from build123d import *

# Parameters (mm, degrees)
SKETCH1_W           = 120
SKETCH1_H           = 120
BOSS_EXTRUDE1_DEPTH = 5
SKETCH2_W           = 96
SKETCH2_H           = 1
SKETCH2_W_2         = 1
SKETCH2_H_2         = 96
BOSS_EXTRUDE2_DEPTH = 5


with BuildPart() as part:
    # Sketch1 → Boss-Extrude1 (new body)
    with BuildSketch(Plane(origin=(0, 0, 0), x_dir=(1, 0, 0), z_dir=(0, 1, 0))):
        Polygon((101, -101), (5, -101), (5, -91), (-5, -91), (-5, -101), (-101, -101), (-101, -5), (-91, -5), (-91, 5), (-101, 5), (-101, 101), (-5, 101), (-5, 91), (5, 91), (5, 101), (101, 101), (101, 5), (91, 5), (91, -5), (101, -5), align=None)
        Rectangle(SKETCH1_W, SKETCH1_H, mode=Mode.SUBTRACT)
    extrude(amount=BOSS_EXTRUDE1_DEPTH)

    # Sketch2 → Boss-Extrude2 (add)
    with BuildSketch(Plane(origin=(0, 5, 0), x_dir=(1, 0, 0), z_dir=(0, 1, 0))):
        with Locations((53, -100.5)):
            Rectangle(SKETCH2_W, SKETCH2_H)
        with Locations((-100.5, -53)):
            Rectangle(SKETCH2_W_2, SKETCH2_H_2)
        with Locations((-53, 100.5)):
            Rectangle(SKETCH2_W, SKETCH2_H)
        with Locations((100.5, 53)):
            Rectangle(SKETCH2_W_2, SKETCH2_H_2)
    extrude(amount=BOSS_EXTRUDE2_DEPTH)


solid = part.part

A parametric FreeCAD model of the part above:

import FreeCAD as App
import Part
import Sketcher

doc = App.newDocument("Part")
body = doc.addObject("PartDesign::Body", "Body")

sketch1 = body.newObject("Sketcher::SketchObject", "Sketch")
sketch1.AttachmentSupport = (doc.getObject("XZ_Plane"), [""])
sketch1.MapMode = "FlatFace"
sketch1.addGeometry([
    Part.LineSegment(App.Vector(5, 101, 0), App.Vector(101, 101, 0)),
    Part.LineSegment(App.Vector(101, 101, 0), App.Vector(101, 5, 0)),
    Part.LineSegment(App.Vector(101, 5, 0), App.Vector(91, 5, 0)),
    Part.LineSegment(App.Vector(91, 5, 0), App.Vector(91, -5, 0)),
    Part.LineSegment(App.Vector(91, -5, 0), App.Vector(101, -5, 0)),
    Part.LineSegment(App.Vector(101, -5, 0), App.Vector(101, -101, 0)),
    Part.LineSegment(App.Vector(101, -101, 0), App.Vector(5, -101, 0)),
    Part.LineSegment(App.Vector(5, -101, 0), App.Vector(5, -91, 0)),
    Part.LineSegment(App.Vector(5, -91, 0), App.Vector(-5, -91, 0)),
    Part.LineSegment(App.Vector(-5, -91, 0), App.Vector(-5, -101, 0)),
    Part.LineSegment(App.Vector(-5, -101, 0), App.Vector(-101, -101, 0)),
    Part.LineSegment(App.Vector(-101, -101, 0), App.Vector(-101, -5, 0)),
    Part.LineSegment(App.Vector(-101, -5, 0), App.Vector(-91, -5, 0)),
    Part.LineSegment(App.Vector(-91, -5, 0), App.Vector(-91, 5, 0)),
    Part.LineSegment(App.Vector(-91, 5, 0), App.Vector(-101, 5, 0)),
    Part.LineSegment(App.Vector(-101, 5, 0), App.Vector(-101, 101, 0)),
    Part.LineSegment(App.Vector(-101, 101, 0), App.Vector(-5, 101, 0)),
    Part.LineSegment(App.Vector(-5, 101, 0), App.Vector(-5, 91, 0)),
    Part.LineSegment(App.Vector(-5, 91, 0), App.Vector(5, 91, 0)),
    Part.LineSegment(App.Vector(5, 91, 0), App.Vector(5, 101, 0)),
    Part.LineSegment(App.Vector(-60, 60, 0), App.Vector(-60, -60, 0)),
    Part.LineSegment(App.Vector(-60, -60, 0), App.Vector(60, -60, 0)),
    Part.LineSegment(App.Vector(60, -60, 0), App.Vector(60, 60, 0)),
    Part.LineSegment(App.Vector(60, 60, 0), App.Vector(-60, 60, 0)),
], False)
sketch1.addConstraint([
    Sketcher.Constraint("Coincident", 0, 2, 1, 1),
    Sketcher.Constraint("Coincident", 1, 2, 2, 1),
    Sketcher.Constraint("Coincident", 2, 2, 3, 1),
    Sketcher.Constraint("Coincident", 3, 2, 4, 1),
    Sketcher.Constraint("Coincident", 4, 2, 5, 1),
    Sketcher.Constraint("Coincident", 5, 2, 6, 1),
    Sketcher.Constraint("Coincident", 6, 2, 7, 1),
    Sketcher.Constraint("Coincident", 7, 2, 8, 1),
    Sketcher.Constraint("Coincident", 8, 2, 9, 1),
    Sketcher.Constraint("Coincident", 9, 2, 10, 1),
    Sketcher.Constraint("Coincident", 10, 2, 11, 1),
    Sketcher.Constraint("Coincident", 11, 2, 12, 1),
    Sketcher.Constraint("Coincident", 12, 2, 13, 1),
    Sketcher.Constraint("Coincident", 13, 2, 14, 1),
    Sketcher.Constraint("Coincident", 14, 2, 15, 1),
    Sketcher.Constraint("Coincident", 15, 2, 16, 1),
    Sketcher.Constraint("Coincident", 16, 2, 17, 1),
    Sketcher.Constraint("Coincident", 17, 2, 18, 1),
    Sketcher.Constraint("Coincident", 18, 2, 19, 1),
    Sketcher.Constraint("Coincident", 19, 2, 0, 1),
    Sketcher.Constraint("Coincident", 20, 2, 21, 1),
    Sketcher.Constraint("Coincident", 21, 2, 22, 1),
    Sketcher.Constraint("Coincident", 22, 2, 23, 1),
    Sketcher.Constraint("Coincident", 23, 2, 20, 1),
    Sketcher.Constraint("Horizontal", 0),
    Sketcher.Constraint("Vertical", 1),
    Sketcher.Constraint("Horizontal", 2),
    Sketcher.Constraint("Vertical", 3),
    Sketcher.Constraint("Horizontal", 4),
    Sketcher.Constraint("Vertical", 5),
    Sketcher.Constraint("Horizontal", 6),
    Sketcher.Constraint("Vertical", 7),
    Sketcher.Constraint("Horizontal", 8),
    Sketcher.Constraint("Vertical", 9),
    Sketcher.Constraint("Horizontal", 10),
    Sketcher.Constraint("Vertical", 11),
    Sketcher.Constraint("Horizontal", 12),
    Sketcher.Constraint("Vertical", 13),
    Sketcher.Constraint("Horizontal", 14),
    Sketcher.Constraint("Vertical", 15),
    Sketcher.Constraint("Horizontal", 16),
    Sketcher.Constraint("Vertical", 17),
    Sketcher.Constraint("Horizontal", 18),
    Sketcher.Constraint("Vertical", 19),
    Sketcher.Constraint("Vertical", 20),
    Sketcher.Constraint("Horizontal", 21),
    Sketcher.Constraint("Vertical", 22),
    Sketcher.Constraint("Horizontal", 23),
    Sketcher.Constraint("Symmetric", 0, 2, 10, 2, -1, 1),
    Sketcher.Constraint("Symmetric", 2, 2, 12, 2, -1, 1),
    Sketcher.Constraint("Symmetric", 4, 2, 14, 2, -1, 1),
    Sketcher.Constraint("Symmetric", 6, 2, 16, 2, -1, 1),
    Sketcher.Constraint("Symmetric", 8, 2, 18, 2, -1, 1),
    Sketcher.Constraint("Symmetric", 20, 2, 22, 2, -1, 1),
    Sketcher.Constraint("Symmetric", 6, 2, 9, 2, -2),
    Sketcher.Constraint("Symmetric", 4, 2, 11, 2, -2),
    Sketcher.Constraint("Equal", 4, 8),
    Sketcher.Constraint("Equal", 16, 1),
    Sketcher.Constraint("Equal", 18, 3),
    Sketcher.Constraint("Equal", 3, 7),
    Sketcher.Constraint("Equal", 23, 20),
    Sketcher.Constraint("DistanceX", 0, 1, 0, 2, 96.0),
    Sketcher.Constraint("DistanceX", 2, 2, 2, 1, 10.0),
    Sketcher.Constraint("DistanceX", 21, 1, 21, 2, 120.0),
])
pad1 = body.newObject("PartDesign::Pad", "Pad")
pad1.Profile = sketch1
pad1.Length = 5
pad1.Reversed = True

sketch2 = body.newObject("Sketcher::SketchObject", "Sketch001")
sketch2.AttachmentSupport = (doc.getObject("XZ_Plane"), [""])
sketch2.MapMode = "FlatFace"
sketch2.AttachmentOffset = App.Placement(App.Vector(0, 0, -5), App.Rotation())
sketch2.addGeometry([
    Part.LineSegment(App.Vector(5, 100, 0), App.Vector(5, 101, 0)),
    Part.LineSegment(App.Vector(5, 101, 0), App.Vector(101, 101, 0)),
    Part.LineSegment(App.Vector(101, 101, 0), App.Vector(101, 100, 0)),
    Part.LineSegment(App.Vector(101, 100, 0), App.Vector(5, 100, 0)),
    Part.LineSegment(App.Vector(-101, 5, 0), App.Vector(-101, 101, 0)),
    Part.LineSegment(App.Vector(-101, 101, 0), App.Vector(-100, 101, 0)),
    Part.LineSegment(App.Vector(-100, 101, 0), App.Vector(-100, 5, 0)),
    Part.LineSegment(App.Vector(-100, 5, 0), App.Vector(-101, 5, 0)),
    Part.LineSegment(App.Vector(-101, -101, 0), App.Vector(-101, -100, 0)),
    Part.LineSegment(App.Vector(-101, -100, 0), App.Vector(-5, -100, 0)),
    Part.LineSegment(App.Vector(-5, -100, 0), App.Vector(-5, -101, 0)),
    Part.LineSegment(App.Vector(-5, -101, 0), App.Vector(-101, -101, 0)),
    Part.LineSegment(App.Vector(100, -101, 0), App.Vector(100, -5, 0)),
    Part.LineSegment(App.Vector(100, -5, 0), App.Vector(101, -5, 0)),
    Part.LineSegment(App.Vector(101, -5, 0), App.Vector(101, -101, 0)),
    Part.LineSegment(App.Vector(101, -101, 0), App.Vector(100, -101, 0)),
], False)
sketch2.addConstraint([
    Sketcher.Constraint("Coincident", 0, 2, 1, 1),
    Sketcher.Constraint("Coincident", 1, 2, 2, 1),
    Sketcher.Constraint("Coincident", 2, 2, 3, 1),
    Sketcher.Constraint("Coincident", 3, 2, 0, 1),
    Sketcher.Constraint("Coincident", 4, 2, 5, 1),
    Sketcher.Constraint("Coincident", 5, 2, 6, 1),
    Sketcher.Constraint("Coincident", 6, 2, 7, 1),
    Sketcher.Constraint("Coincident", 7, 2, 4, 1),
    Sketcher.Constraint("Coincident", 8, 2, 9, 1),
    Sketcher.Constraint("Coincident", 9, 2, 10, 1),
    Sketcher.Constraint("Coincident", 10, 2, 11, 1),
    Sketcher.Constraint("Coincident", 11, 2, 8, 1),
    Sketcher.Constraint("Coincident", 12, 2, 13, 1),
    Sketcher.Constraint("Coincident", 13, 2, 14, 1),
    Sketcher.Constraint("Coincident", 14, 2, 15, 1),
    Sketcher.Constraint("Coincident", 15, 2, 12, 1),
    Sketcher.Constraint("Vertical", 0),
    Sketcher.Constraint("Horizontal", 1),
    Sketcher.Constraint("Vertical", 2),
    Sketcher.Constraint("Horizontal", 3),
    Sketcher.Constraint("Vertical", 4),
    Sketcher.Constraint("Horizontal", 5),
    Sketcher.Constraint("Vertical", 6),
    Sketcher.Constraint("Horizontal", 7),
    Sketcher.Constraint("Vertical", 8),
    Sketcher.Constraint("Horizontal", 9),
    Sketcher.Constraint("Vertical", 10),
    Sketcher.Constraint("Horizontal", 11),
    Sketcher.Constraint("Vertical", 12),
    Sketcher.Constraint("Horizontal", 13),
    Sketcher.Constraint("Vertical", 14),
    Sketcher.Constraint("Horizontal", 15),
    Sketcher.Constraint("Symmetric", 2, 2, 8, 2, -1, 1),
    Sketcher.Constraint("Symmetric", 0, 2, 10, 2, -1, 1),
    Sketcher.Constraint("Symmetric", 6, 2, 12, 2, -1, 1),
    Sketcher.Constraint("Symmetric", 4, 2, 14, 2, -1, 1),
    Sketcher.Constraint("Symmetric", 1, 2, 4, 2, -2),
    Sketcher.Constraint("Equal", 15, 0),
    Sketcher.Constraint("Equal", 11, 4),
    Sketcher.Constraint("DistanceX", 1, 1, 1, 2, 96.0),
    Sketcher.Constraint("DistanceX", 5, 1, 5, 2, 1.0),
    Sketcher.Constraint("DistanceX", -1, 1, 0, 2, 5.0),
    Sketcher.Constraint("DistanceY", -1, 1, 0, 2, 101.0),
])
pad2 = body.newObject("PartDesign::Pad", "Pad001")
pad2.Profile = sketch2
pad2.Length = 5
pad2.Reversed = True

doc.recompute()
